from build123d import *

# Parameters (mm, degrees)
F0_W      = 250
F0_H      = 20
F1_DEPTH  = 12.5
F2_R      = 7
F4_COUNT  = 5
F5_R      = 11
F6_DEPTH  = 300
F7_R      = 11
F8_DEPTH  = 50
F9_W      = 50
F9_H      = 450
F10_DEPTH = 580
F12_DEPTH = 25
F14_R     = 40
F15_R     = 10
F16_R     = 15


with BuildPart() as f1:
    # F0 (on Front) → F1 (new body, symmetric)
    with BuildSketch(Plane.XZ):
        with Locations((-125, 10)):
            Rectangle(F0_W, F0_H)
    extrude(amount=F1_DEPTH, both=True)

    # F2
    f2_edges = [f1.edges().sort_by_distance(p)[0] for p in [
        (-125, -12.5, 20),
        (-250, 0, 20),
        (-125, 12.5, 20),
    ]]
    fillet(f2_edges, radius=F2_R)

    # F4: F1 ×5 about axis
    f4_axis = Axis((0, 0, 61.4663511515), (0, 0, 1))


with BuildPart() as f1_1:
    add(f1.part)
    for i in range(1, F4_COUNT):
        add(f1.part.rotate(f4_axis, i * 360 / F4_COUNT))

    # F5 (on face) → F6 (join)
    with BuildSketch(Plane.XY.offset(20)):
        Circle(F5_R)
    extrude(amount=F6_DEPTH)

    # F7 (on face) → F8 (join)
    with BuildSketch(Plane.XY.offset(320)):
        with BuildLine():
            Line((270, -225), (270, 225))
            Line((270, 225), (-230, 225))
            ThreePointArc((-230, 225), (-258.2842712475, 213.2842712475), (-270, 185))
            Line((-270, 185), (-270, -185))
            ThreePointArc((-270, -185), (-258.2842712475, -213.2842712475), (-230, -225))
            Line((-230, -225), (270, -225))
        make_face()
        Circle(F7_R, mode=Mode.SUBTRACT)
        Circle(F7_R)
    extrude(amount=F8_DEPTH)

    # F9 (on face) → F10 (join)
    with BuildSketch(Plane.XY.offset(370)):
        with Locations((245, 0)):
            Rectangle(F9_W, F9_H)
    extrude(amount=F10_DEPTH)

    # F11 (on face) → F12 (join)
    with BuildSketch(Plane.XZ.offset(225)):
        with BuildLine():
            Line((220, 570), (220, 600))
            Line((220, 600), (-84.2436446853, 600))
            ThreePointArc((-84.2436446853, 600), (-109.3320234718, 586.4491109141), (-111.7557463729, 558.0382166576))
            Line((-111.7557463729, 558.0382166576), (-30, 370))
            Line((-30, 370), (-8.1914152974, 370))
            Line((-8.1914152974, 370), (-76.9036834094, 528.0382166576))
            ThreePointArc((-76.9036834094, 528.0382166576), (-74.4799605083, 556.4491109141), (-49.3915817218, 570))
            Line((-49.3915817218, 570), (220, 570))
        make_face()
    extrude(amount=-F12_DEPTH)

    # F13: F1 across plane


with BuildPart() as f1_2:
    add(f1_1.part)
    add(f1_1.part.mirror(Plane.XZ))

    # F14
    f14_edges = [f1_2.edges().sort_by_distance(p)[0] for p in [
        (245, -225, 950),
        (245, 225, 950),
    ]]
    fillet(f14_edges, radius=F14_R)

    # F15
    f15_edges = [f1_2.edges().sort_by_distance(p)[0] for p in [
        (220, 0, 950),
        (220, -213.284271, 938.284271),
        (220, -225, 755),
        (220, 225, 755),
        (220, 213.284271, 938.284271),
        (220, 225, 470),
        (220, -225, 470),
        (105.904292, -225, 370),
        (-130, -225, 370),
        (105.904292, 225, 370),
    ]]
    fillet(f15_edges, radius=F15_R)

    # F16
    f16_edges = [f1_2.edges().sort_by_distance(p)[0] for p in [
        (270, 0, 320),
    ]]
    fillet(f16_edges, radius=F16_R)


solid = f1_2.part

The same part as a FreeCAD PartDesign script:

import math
import FreeCAD as App
import Part
import Sketcher

V = App.Vector
Q = App.Units.Quantity


def edges_at(feature, points):
    """Names of the edges that pass closest to the given points."""
    edges = feature.Shape.Edges
    near = lambda p: min(range(len(edges)), key=lambda i: edges[i].distToShape(Part.Vertex(*p))[0])
    return sorted({f"Edge{near(p) + 1}" for p in points})

doc = App.newDocument("Part")
params = doc.addObject("Spreadsheet::Sheet", "Params")
for row, (alias, value) in enumerate([
    ("sketch1_width", "250 mm"),
    ("sketch1_height", "20 mm"),
    ("pad1_length", "25 mm"),
    ("fillet_radius", "7 mm"),
    ("sketch2_diameter", "22 mm"),
    ("pad2_length", "300 mm"),
    ("sketch3_radius", "40 mm"),
    ("sketch3_width", "500 mm"),
    ("sketch3_height", "450 mm"),
    ("pad3_length", "50 mm"),
    ("sketch4_width", "50 mm"),
    ("sketch4_height", "450 mm"),
    ("pad4_length", "580 mm"),
    ("sketch5_radius", "30 mm"),
    ("pad5_length", "25 mm"),
    ("fillet2_radius", "40 mm"),
    ("fillet3_radius", "10 mm"),
    ("fillet4_radius", "15 mm"),
], start=1):
    params.set(f"A{row}", alias)
    params.set(f"B{row}", "=" + value)
    params.setAlias(f"B{row}", alias)

body = doc.addObject("PartDesign::Body", "Body")

# Sketch on XZ plane
sketch1 = body.newObject("Sketcher::SketchObject", "Sketch")
sketch1.AttachmentSupport = (doc.getObject("XZ_Plane"), [""])
sketch1.MapMode = "FlatFace"
sketch1.addGeometry([
    Part.LineSegment(V(-250, 20, 0), V(-250, 0, 0)),
    Part.LineSegment(V(-250, 0, 0), V(0, 0, 0)),
    Part.LineSegment(V(0, 0, 0), V(0, 20, 0)),
    Part.LineSegment(V(0, 20, 0), V(-250, 20, 0)),
], False)
sketch1.addConstraint([
    Sketcher.Constraint("Coincident", 0, 2, 1, 1),
    Sketcher.Constraint("Coincident", 1, 2, 2, 1),
    Sketcher.Constraint("Coincident", 2, 2, 3, 1),
    Sketcher.Constraint("Coincident", 3, 2, 0, 1),
    Sketcher.Constraint("Vertical", 0),
    Sketcher.Constraint("Horizontal", 1),
    Sketcher.Constraint("Vertical", 2),
    Sketcher.Constraint("Horizontal", 3),
    Sketcher.Constraint("Coincident", 1, 2, -1, 1),
    Sketcher.Constraint("DistanceX", 1, 1, 1, 2, Q("250 mm")),
    Sketcher.Constraint("DistanceY", 0, 2, 0, 1, Q("20 mm")),
])
sketch1.setExpression("Constraints[9]", "Params.sketch1_width")
sketch1.setExpression("Constraints[10]", "Params.sketch1_height")
pad1 = body.newObject("PartDesign::Pad", "Pad")
pad1.Profile = sketch1
pad1.setExpression("Length", "Params.pad1_length")
pad1.Midplane = True
doc.recompute()

fillet = body.newObject("PartDesign::Fillet", "Fillet")
fillet.Base = (pad1, edges_at(pad1, [(-125, -12.5, 20), (-250, 0, 20), (-125, 12.5, 20)]))
fillet.setExpression("Radius", "Params.fillet_radius")
body2 = doc.addObject("PartDesign::Body", "Body001")
doc.recompute()

body2.BaseFeature = body
doc.recompute()

body3 = doc.addObject("PartDesign::Body", "Body002")
body3.BaseFeature = body
body3.Placement = App.Placement(V(0, 0, 0), App.Rotation(V(0, 0, 1), 72))
boolean = body2.newObject("PartDesign::Boolean", "Boolean")
boolean.Type = "Fuse"
boolean.addObjects([body3])
doc.recompute()

body4 = doc.addObject("PartDesign::Body", "Body003")
body4.BaseFeature = body
body4.Placement = App.Placement(V(0, 0, 0), App.Rotation(V(0, 0, 1), 144))
boolean2 = body2.newObject("PartDesign::Boolean", "Boolean001")
boolean2.Type = "Fuse"
boolean2.addObjects([body4])
doc.recompute()

body5 = doc.addObject("PartDesign::Body", "Body004")
body5.BaseFeature = body
body5.Placement = App.Placement(V(0, 0, 0), App.Rotation(V(0, 0, 1), 216))
boolean3 = body2.newObject("PartDesign::Boolean", "Boolean002")
boolean3.Type = "Fuse"
boolean3.addObjects([body5])
doc.recompute()

body.Placement = App.Placement(V(0, 0, 0), App.Rotation(V(0, 0, 1), 288))
boolean4 = body2.newObject("PartDesign::Boolean", "Boolean003")
boolean4.Type = "Fuse"
boolean4.addObjects([body])

# Sketch on XY plane
sketch2 = body2.newObject("Sketcher::SketchObject", "Sketch001")
sketch2.AttachmentSupport = (doc.getObject("XY_Plane001"), [""])
sketch2.MapMode = "FlatFace"
sketch2.AttachmentOffset = App.Placement(V(0, 0, 20), App.Rotation())
sketch2.addGeometry(Part.Circle(V(0, 0, 0), V(0, 0, 1), 11), False)
sketch2.addConstraint([
    Sketcher.Constraint("Coincident", 0, 3, -1, 1),
    Sketcher.Constraint("Diameter", 0, Q("22 mm")),
])
sketch2.setExpression("Constraints[1]", "Params.sketch2_diameter")
pad2 = body2.newObject("PartDesign::Pad", "Pad001")
pad2.Profile = sketch2
pad2.setExpression("Length", "Params.pad2_length")

# Sketch on XY plane
sketch3 = body2.newObject("Sketcher::SketchObject", "Sketch002")
sketch3.AttachmentSupport = (doc.getObject("XY_Plane001"), [""])
sketch3.MapMode = "FlatFace"
sketch3.AttachmentOffset = App.Placement(V(0, 0, 320), App.Rotation())
sketch3.addGeometry([
    Part.LineSegment(V(270, -225, 0), V(270, 225, 0)),  # 0
    Part.LineSegment(V(270, 225, 0), V(-230, 225, 0)),  # 1
    Part.ArcOfCircle(Part.Circle(V(-230, 185, 0), V(0, 0, 1), 40), math.radians(90), math.radians(180)),  # 2
    Part.LineSegment(V(-270, 185, 0), V(-270, -185, 0)),  # 3
    Part.ArcOfCircle(Part.Circle(V(-230, -185, 0), V(0, 0, 1), 40), math.radians(180), math.radians(270)),  # 4
    Part.LineSegment(V(-230, -225, 0), V(270, -225, 0)),  # 5
], False)
sketch3.addConstraint([
    Sketcher.Constraint("Coincident", 0, 2, 1, 1),
    Sketcher.Constraint("Tangent", 1, 2, 2, 1),
    Sketcher.Constraint("Tangent", 2, 2, 3, 1),
    Sketcher.Constraint("Tangent", 3, 2, 4, 1),
    Sketcher.Constraint("Tangent", 4, 2, 5, 1),
    Sketcher.Constraint("Coincident", 5, 2, 0, 1),
    Sketcher.Constraint("Vertical", 0),
    Sketcher.Constraint("Horizontal", 1),
    Sketcher.Constraint("Vertical", 3),
    Sketcher.Constraint("Horizontal", 5),
    Sketcher.Constraint("Equal", 2, 4),
    Sketcher.Constraint("Radius", 2, Q("40 mm")),
    Sketcher.Constraint("DistanceX", 1, 2, 1, 1, Q("500 mm")),
    Sketcher.Constraint("DistanceY", 0, 1, 0, 2, Q("450 mm")),
    Sketcher.Constraint("DistanceX", 2, 3, -1, 1, Q("230 mm")),
    Sketcher.Constraint("DistanceY", -1, 1, 2, 3, Q("185 mm")),
])
sketch3.setExpression("Constraints[11]", "Params.sketch3_radius")
sketch3.setExpression("Constraints[12]", "Params.sketch3_width")
sketch3.setExpression("Constraints[13]", "Params.sketch3_height")
pad3 = body2.newObject("PartDesign::Pad", "Pad002")
pad3.Profile = sketch3
pad3.setExpression("Length", "Params.pad3_length")

# Sketch on XY plane
sketch4 = body2.newObject("Sketcher::SketchObject", "Sketch003")
sketch4.AttachmentSupport = (doc.getObject("XY_Plane001"), [""])
sketch4.MapMode = "FlatFace"
sketch4.AttachmentOffset = App.Placement(V(0, 0, 370), App.Rotation())
sketch4.addGeometry([
    Part.LineSegment(V(220, 225, 0), V(220, -225, 0)),
    Part.LineSegment(V(220, -225, 0), V(270, -225, 0)),
    Part.LineSegment(V(270, -225, 0), V(270, 225, 0)),
    Part.LineSegment(V(270, 225, 0), V(220, 225, 0)),
], False)
sketch4.addConstraint([
    Sketcher.Constraint("Coincident", 0, 2, 1, 1),
    Sketcher.Constraint("Coincident", 1, 2, 2, 1),
    Sketcher.Constraint("Coincident", 2, 2, 3, 1),
    Sketcher.Constraint("Coincident", 3, 2, 0, 1),
    Sketcher.Constraint("Vertical", 0),
    Sketcher.Constraint("Horizontal", 1),
    Sketcher.Constraint("Vertical", 2),
    Sketcher.Constraint("Horizontal", 3),
    Sketcher.Constraint("DistanceX", 1, 1, 1, 2, Q("50 mm")),
    Sketcher.Constraint("DistanceY", 0, 2, 0, 1, Q("450 mm")),
    Sketcher.Constraint("DistanceX", -1, 1, 0, 2, Q("220 mm")),
    Sketcher.Constraint("DistanceY", 0, 2, -1, 1, Q("225 mm")),
])
sketch4.setExpression("Constraints[8]", "Params.sketch4_width")
sketch4.setExpression("Constraints[9]", "Params.sketch4_height")
pad4 = body2.newObject("PartDesign::Pad", "Pad003")
pad4.Profile = sketch4
pad4.setExpression("Length", "Params.pad4_length")

# Sketch on XZ plane
sketch5 = body2.newObject("Sketcher::SketchObject", "Sketch004")
sketch5.AttachmentSupport = (doc.getObject("XZ_Plane001"), [""])
sketch5.MapMode = "FlatFace"
sketch5.AttachmentOffset = App.Placement(V(0, 0, 225), App.Rotation())
sketch5.addGeometry([
    Part.LineSegment(V(220, 570, 0), V(220, 600, 0)),  # 0
    Part.LineSegment(V(220, 600, 0), V(-84, 600, 0)),  # 1
    Part.ArcOfCircle(Part.Circle(V(-84, 570, 0), V(0, 0, 1), 30), math.radians(90), math.radians(203)),  # 2
    Part.LineSegment(V(-112, 558, 0), V(-30, 370, 0)),  # 3
    Part.LineSegment(V(-30, 370, 0), V(-8, 370, 0)),  # 4
    Part.LineSegment(V(-8, 370, 0), V(-77, 528, 0)),  # 5
    Part.ArcOfCircle(Part.Circle(V(-49, 540, 0), V(0, 0, 1), 30), math.radians(90), math.radians(203)),  # 6
    Part.LineSegment(V(-49, 570, 0), V(220, 570, 0)),  # 7
], False)
sketch5.addConstraint([
    Sketcher.Constraint("Coincident", 0, 2, 1, 1),
    Sketcher.Constraint("Tangent", 1, 2, 2, 1),
    Sketcher.Constraint("Tangent", 2, 2, 3, 1),
    Sketcher.Constraint("Coincident", 3, 2, 4, 1),
    Sketcher.Constraint("Coincident", 4, 2, 5, 1),
    Sketcher.Constraint("Tangent", 5, 2, 6, 2),
    Sketcher.Constraint("Tangent", 6, 1, 7, 1),
    Sketcher.Constraint("Coincident", 7, 2, 0, 1),
    Sketcher.Constraint("Vertical", 0),
    Sketcher.Constraint("Horizontal", 1),
    Sketcher.Constraint("Horizontal", 4),
    Sketcher.Constraint("Horizontal", 7),
    Sketcher.Constraint("Equal", 2, 6),
    Sketcher.Constraint("Parallel", 3, 5),
    Sketcher.Constraint("Horizontal", 2, 3, 6, 1),
    Sketcher.Constraint("Radius", 2, Q("30 mm")),
    Sketcher.Constraint("DistanceY", -1, 1, 2, 3, Q("570 mm")),
    Sketcher.Constraint("DistanceX", -1, 1, 0, 2, Q("220 mm")),
    Sketcher.Constraint("DistanceX", 3, 2, -1, 1, Q("30 mm")),
    Sketcher.Constraint("DistanceY", -1, 1, 3, 2, Q("370 mm")),
    Sketcher.Constraint("DistanceX", 7, 1, 7, 2, Q("269.391582 mm")),
    Sketcher.Constraint("DistanceX", 2, 2, 2, 3, Q("27.512102 mm")),
])
sketch5.setExpression("Constraints[15]", "Params.sketch5_radius")
pad5 = body2.newObject("PartDesign::Pad", "Pad004")
pad5.Profile = sketch5
pad5.setExpression("Length", "Params.pad5_length")
pad5.Reversed = True
body6 = doc.addObject("PartDesign::Body", "Body005")
doc.recompute()

body6.BaseFeature = body2
doc.recompute()

mirroring = doc.addObject("Part::Mirroring", "Mirroring")
mirroring.Source = body2
mirroring.Base = V(0, 0, 0)
mirroring.Normal = V(0, -1, 0)
body7 = doc.addObject("PartDesign::Body", "Body006")
body7.BaseFeature = mirroring
boolean5 = body6.newObject("PartDesign::Boolean", "Boolean004")
boolean5.Type = "Fuse"
boolean5.addObjects([body7])
doc.recompute()

fillet2 = body6.newObject("PartDesign::Fillet", "Fillet001")
fillet2.Base = (boolean5, edges_at(boolean5, [(245, -225, 950), (245, 225, 950)]))
fillet2.setExpression("Radius", "Params.fillet2_radius")
doc.recompute()

fillet3 = body6.newObject("PartDesign::Fillet", "Fillet002")
fillet3.Base = (fillet2, edges_at(fillet2, [
    (220, 0, 950),
    (220, -213.284, 938.284),
    (220, -225, 755),
    (220, 225, 755),
    (220, 213.284, 938.284),
    (220, 225, 470),
    (220, -225, 470),
    (105.904, -225, 370),
    (-130, -225, 370),
    (105.904, 225, 370),
]))
fillet3.setExpression("Radius", "Params.fillet3_radius")
doc.recompute()

fillet4 = body6.newObject("PartDesign::Fillet", "Fillet003")
fillet4.Base = (fillet3, edges_at(fillet3, [(270, 0, 320)]))
fillet4.setExpression("Radius", "Params.fillet4_radius")
mirroring.Visibility = False

doc.recompute()
